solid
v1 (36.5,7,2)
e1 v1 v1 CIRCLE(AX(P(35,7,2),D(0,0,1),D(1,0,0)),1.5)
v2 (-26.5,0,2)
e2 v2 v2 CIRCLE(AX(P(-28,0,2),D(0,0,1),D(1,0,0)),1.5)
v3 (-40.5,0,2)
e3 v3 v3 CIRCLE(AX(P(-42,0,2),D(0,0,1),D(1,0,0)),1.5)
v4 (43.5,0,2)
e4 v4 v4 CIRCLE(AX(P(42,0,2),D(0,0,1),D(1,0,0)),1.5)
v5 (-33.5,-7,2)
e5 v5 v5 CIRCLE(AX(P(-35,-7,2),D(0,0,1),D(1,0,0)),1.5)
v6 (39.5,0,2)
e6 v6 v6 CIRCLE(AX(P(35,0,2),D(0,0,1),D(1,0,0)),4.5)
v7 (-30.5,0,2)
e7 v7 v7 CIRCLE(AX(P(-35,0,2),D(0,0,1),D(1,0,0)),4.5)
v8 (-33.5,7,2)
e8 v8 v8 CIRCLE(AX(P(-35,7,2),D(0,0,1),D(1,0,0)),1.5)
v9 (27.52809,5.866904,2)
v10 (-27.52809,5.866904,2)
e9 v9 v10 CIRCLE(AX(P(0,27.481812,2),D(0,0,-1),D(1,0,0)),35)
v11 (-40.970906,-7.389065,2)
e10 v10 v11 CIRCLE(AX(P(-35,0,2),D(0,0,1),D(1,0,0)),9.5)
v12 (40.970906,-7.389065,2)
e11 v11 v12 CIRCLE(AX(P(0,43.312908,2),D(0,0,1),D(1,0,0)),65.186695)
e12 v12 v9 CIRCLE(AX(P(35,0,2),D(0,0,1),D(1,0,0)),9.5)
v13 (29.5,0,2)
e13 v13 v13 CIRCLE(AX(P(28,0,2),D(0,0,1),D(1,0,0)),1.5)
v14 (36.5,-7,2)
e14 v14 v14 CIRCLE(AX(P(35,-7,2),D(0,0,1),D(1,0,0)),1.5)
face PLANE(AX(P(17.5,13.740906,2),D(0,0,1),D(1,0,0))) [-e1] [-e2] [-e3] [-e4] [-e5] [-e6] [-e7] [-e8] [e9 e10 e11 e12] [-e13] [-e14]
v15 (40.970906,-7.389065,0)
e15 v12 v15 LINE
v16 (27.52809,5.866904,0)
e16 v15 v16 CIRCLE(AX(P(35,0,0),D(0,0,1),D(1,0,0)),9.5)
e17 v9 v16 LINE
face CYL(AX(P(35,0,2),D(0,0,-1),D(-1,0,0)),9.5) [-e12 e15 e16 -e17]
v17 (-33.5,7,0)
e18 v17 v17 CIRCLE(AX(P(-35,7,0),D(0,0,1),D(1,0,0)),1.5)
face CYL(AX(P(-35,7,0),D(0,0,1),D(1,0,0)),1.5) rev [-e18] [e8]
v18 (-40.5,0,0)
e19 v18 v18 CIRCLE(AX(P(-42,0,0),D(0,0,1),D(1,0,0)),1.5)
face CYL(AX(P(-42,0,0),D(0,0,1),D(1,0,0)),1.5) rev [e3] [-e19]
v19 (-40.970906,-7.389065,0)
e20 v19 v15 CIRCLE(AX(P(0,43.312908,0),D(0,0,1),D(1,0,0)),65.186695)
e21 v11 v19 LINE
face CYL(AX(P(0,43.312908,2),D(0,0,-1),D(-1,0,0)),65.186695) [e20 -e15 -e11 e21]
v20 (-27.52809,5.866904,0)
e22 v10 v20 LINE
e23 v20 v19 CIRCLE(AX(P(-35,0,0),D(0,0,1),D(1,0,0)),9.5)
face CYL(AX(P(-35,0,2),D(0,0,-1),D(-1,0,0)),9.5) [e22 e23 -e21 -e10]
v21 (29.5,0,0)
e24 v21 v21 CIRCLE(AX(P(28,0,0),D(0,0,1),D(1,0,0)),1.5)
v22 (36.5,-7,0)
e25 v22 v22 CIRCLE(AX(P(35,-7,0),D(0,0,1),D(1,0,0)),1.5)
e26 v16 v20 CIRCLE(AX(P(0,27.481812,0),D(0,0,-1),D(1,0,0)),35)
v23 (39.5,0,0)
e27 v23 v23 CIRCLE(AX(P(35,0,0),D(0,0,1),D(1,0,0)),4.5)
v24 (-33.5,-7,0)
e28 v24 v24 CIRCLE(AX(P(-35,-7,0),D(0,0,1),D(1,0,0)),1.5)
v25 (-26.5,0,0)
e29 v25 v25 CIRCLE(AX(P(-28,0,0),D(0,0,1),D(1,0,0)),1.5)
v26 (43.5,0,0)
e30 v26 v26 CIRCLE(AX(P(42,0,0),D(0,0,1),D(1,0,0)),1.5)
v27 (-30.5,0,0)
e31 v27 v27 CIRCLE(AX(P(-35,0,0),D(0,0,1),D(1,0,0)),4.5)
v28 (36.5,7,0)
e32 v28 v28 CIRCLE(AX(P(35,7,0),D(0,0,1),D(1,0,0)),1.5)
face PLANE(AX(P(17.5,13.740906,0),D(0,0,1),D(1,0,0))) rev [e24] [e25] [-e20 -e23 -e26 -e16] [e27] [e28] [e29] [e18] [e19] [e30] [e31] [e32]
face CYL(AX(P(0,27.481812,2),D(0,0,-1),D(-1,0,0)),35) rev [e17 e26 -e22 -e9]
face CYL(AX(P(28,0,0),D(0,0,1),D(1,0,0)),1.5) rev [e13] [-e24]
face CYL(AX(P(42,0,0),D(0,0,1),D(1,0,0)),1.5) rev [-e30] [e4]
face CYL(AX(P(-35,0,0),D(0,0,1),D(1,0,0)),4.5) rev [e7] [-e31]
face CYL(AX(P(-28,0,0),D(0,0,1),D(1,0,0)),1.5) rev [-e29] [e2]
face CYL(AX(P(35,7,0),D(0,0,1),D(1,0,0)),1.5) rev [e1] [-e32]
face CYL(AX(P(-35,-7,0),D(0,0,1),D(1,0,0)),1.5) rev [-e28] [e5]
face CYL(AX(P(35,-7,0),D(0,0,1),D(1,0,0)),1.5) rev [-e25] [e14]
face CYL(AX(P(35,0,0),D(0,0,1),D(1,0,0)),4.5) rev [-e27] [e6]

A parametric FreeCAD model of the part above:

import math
import FreeCAD as App
import Part
import Sketcher

doc = App.newDocument("Part")
body = doc.addObject("PartDesign::Body", "Body")

sketch1 = doc.addObject("Sketcher::SketchObject", "Sketch")
body.addObject(sketch1)
sketch1.AttachmentSupport = (doc.XY_Plane, [""])
sketch1.MapMode = "FlatFace"
sketch1.addGeometry([
    Part.ArcOfCircle(Part.Circle(App.Vector(-35, 0, 0), App.Vector(0, 0, 1), 10), math.radians(38), math.radians(231)),
    Part.ArcOfCircle(Part.Circle(App.Vector(0, 43, 0), App.Vector(0, 0, 1), 65), math.radians(-129), math.radians(-51)),
    Part.ArcOfCircle(Part.Circle(App.Vector(35, 0, 0), App.Vector(0, 0, 1), 10), math.radians(-51), math.radians(142)),
    Part.ArcOfCircle(Part.Circle(App.Vector(0, 27, 0), App.Vector(0, 0, 1), 35), math.radians(-142), math.radians(-38)),
], False)
sketch1.addConstraint([
    Sketcher.Constraint("Tangent", 0, 2, 1, 1),
    Sketcher.Constraint("Tangent", 1, 2, 2, 1),
    Sketcher.Constraint("Tangent", 2, 2, 3, 2),
    Sketcher.Constraint("Tangent", 3, 1, 0, 1),
    Sketcher.Constraint("Equal", 0, 2),
    Sketcher.Constraint("Symmetric", 0, 3, 2, 3, -1, 1),
    Sketcher.Constraint("PointOnObject", 0, 3, -1),
    Sketcher.Constraint("Radius", 3, 35.0),
    Sketcher.Constraint("Radius", 0, 9.5),
    Sketcher.Constraint("DistanceX", 0, 3, -1, 1, 35.0),
    Sketcher.Constraint("Radius", 1, 65.186695),
])
pad1 = doc.addObject("PartDesign::Pad", "Pad")
body.addObject(pad1)
pad1.Profile = sketch1
pad1.Length = 2

sketch2 = doc.addObject("Sketcher::SketchObject", "Sketch001")
body.addObject(sketch2)
sketch2.AttachmentSupport = (doc.XY_Plane, [""])
sketch2.MapMode = "FlatFace"
sketch2.AttachmentOffset = App.Placement(App.Vector(0, 0, 2), App.Rotation())
sketch2.addGeometry([
    Part.Circle(App.Vector(35, 0, 0), App.Vector(0, 0, 1), 4.5),
    Part.Circle(App.Vector(-35, 0, 0), App.Vector(0, 0, 1), 4.5),
    Part.Circle(App.Vector(-28, 0, 0), App.Vector(0, 0, 1), 1.5),
    Part.Circle(App.Vector(-35, -7, 0), App.Vector(0, 0, 1), 1.5),
    Part.Circle(App.Vector(-42, 0, 0), App.Vector(0, 0, 1), 1.5),
    Part.Circle(App.Vector(-35, 7, 0), App.Vector(0, 0, 1), 1.5),
    Part.Circle(App.Vector(28, 0, 0), App.Vector(0, 0, 1), 1.5),
    Part.Circle(App.Vector(35, 7, 0), App.Vector(0, 0, 1), 1.5),
    Part.Circle(App.Vector(42, 0, 0), App.Vector(0, 0, 1), 1.5),
    Part.Circle(App.Vector(35, -7, 0), App.Vector(0, 0, 1), 1.5),
], False)
sketch2.addConstraint([
    Sketcher.Constraint("Equal", 0, 1),
    Sketcher.Constraint("Equal", 2, 3),
    Sketcher.Constraint("Equal", 3, 4),
    Sketcher.Constraint("Equal", 4, 5),
    Sketcher.Constraint("Equal", 5, 6),
    Sketcher.Constraint("Equal", 6, 7),
    Sketcher.Constraint("Equal", 7, 8),
    Sketcher.Constraint("Equal", 8, 9),
    Sketcher.Constraint("Symmetric", 0, 3, 1, 3, -1, 1),
    Sketcher.Constraint("Symmetric", 2, 3, 6, 3, -1, 1),
    Sketcher.Constraint("Symmetric", 3, 3, 7, 3, -1, 1),
    Sketcher.Constraint("Symmetric", 4, 3, 8, 3, -1, 1),
    Sketcher.Constraint("Symmetric", 5, 3, 9, 3, -1, 1),
    Sketcher.Constraint("Symmetric", 5, 3, 7, 3, -2),
    Sketcher.Constraint("PointOnObject", 0, 3, -1),
    Sketcher.Constraint("PointOnObject", 2, 3, -1),
    Sketcher.Constraint("PointOnObject", 4, 3, -1),
    Sketcher.Constraint("Vertical", 1, 3, 3, 3),
    Sketcher.Constraint("Diameter", 0, 9.0),
    Sketcher.Constraint("Diameter", 2, 3.0),
    Sketcher.Constraint("DistanceX", -1, 1, 0, 3, 35.0),
    Sketcher.Constraint("DistanceX", 2, 3, -1, 1, 28.0),
    Sketcher.Constraint("DistanceY", 3, 3, -1, 1, 7.0),
    Sketcher.Constraint("DistanceX", 4, 3, -1, 1, 42.0),
])
pocket1 = doc.addObject("PartDesign::Pocket", "Pocket")
body.addObject(pocket1)
pocket1.Profile = sketch2
pocket1.Length = 2

doc.recompute()
